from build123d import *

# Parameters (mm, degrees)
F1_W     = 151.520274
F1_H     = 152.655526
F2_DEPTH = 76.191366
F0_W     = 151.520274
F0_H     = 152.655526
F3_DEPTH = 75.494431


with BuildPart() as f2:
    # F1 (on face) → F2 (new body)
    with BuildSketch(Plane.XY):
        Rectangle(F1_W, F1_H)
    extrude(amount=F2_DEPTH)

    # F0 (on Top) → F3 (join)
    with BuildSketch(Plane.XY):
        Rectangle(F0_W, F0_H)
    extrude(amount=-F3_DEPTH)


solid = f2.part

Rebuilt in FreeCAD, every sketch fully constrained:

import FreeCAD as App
import Part
import Sketcher

doc = App.newDocument("Part")
params = doc.addObject("Spreadsheet::Sheet", "Params")
for row, (alias, value) in enumerate([
    ("pad1_length", "76.191366 mm"),
    ("pad2_length", "75.494431 mm"),
], start=1):
    params.set(f"A{row}", alias)
    params.set(f"B{row}", "=" + value)
    params.setAlias(f"B{row}", alias)

body = doc.addObject("PartDesign::Body", "Body")

# Sketch on XY plane
sketch1 = doc.addObject("Sketcher::SketchObject", "Sketch")
body.addObject(sketch1)
sketch1.AttachmentSupport = (doc.XY_Plane, [""])
sketch1.MapMode = "FlatFace"
sketch1.addGeometry(Part.LineSegment(App.Vector(-76, 76, 0), App.Vector(-76, -76, 0)), False)
sketch1.addGeometry(Part.LineSegment(App.Vector(-76, -76, 0), App.Vector(76, -76, 0)), False)
sketch1.addGeometry(Part.LineSegment(App.Vector(76, -76, 0), App.Vector(76, 76, 0)), False)
sketch1.addGeometry(Part.LineSegment(App.Vector(76, 76, 0), App.Vector(-76, 76, 0)), False)
sketch1.addConstraint(Sketcher.Constraint("Coincident", 0, 2, 1, 1))
sketch1.addConstraint(Sketcher.Constraint("Coincident", 1, 2, 2, 1))
sketch1.addConstraint(Sketcher.Constraint("Coincident", 2, 2, 3, 1))
sketch1.addConstraint(Sketcher.Constraint("Coincident", 3, 2, 0, 1))
sketch1.addConstraint(Sketcher.Constraint("Vertical", 0))
sketch1.addConstraint(Sketcher.Constraint("Horizontal", 1))
sketch1.addConstraint(Sketcher.Constraint("Vertical", 2))
sketch1.addConstraint(Sketcher.Constraint("Horizontal", 3))
sketch1.addConstraint(Sketcher.Constraint("Symmetric", 0, 2, 2, 2, -1, 1))
sketch1.addConstraint(Sketcher.Constraint("DistanceX", 1, 1, 1, 2, 151.520274))
sketch1.addConstraint(Sketcher.Constraint("DistanceY", 0, 2, 0, 1, 152.655526))
pad1 = doc.addObject("PartDesign::Pad", "Pad")
body.addObject(pad1)
pad1.Profile = sketch1
pad1.setExpression("Length", "Params.pad1_length")

# Sketch on XY plane
sketch2 = doc.addObject("Sketcher::SketchObject", "Sketch001")
body.addObject(sketch2)
sketch2.AttachmentSupport = (doc.XY_Plane, [""])
sketch2.MapMode = "FlatFace"
sketch2.addGeometry(Part.LineSegment(App.Vector(-76, 76, 0), App.Vector(-76, -76, 0)), False)
sketch2.addGeometry(Part.LineSegment(App.Vector(-76, -76, 0), App.Vector(76, -76, 0)), False)
sketch2.addGeometry(Part.LineSegment(App.Vector(76, -76, 0), App.Vector(76, 76, 0)), False)
sketch2.addGeometry(Part.LineSegment(App.Vector(76, 76, 0), App.Vector(-76, 76, 0)), False)
sketch2.addConstraint(Sketcher.Constraint("Coincident", 0, 2, 1, 1))
sketch2.addConstraint(Sketcher.Constraint("Coincident", 1, 2, 2, 1))
sketch2.addConstraint(Sketcher.Constraint("Coincident", 2, 2, 3, 1))
sketch2.addConstraint(Sketcher.Constraint("Coincident", 3, 2, 0, 1))
sketch2.addConstraint(Sketcher.Constraint("Vertical", 0))
sketch2.addConstraint(Sketcher.Constraint("Horizontal", 1))
sketch2.addConstraint(Sketcher.Constraint("Vertical", 2))
sketch2.addConstraint(Sketcher.Constraint("Horizontal", 3))
sketch2.addConstraint(Sketcher.Constraint("Symmetric", 0, 2, 2, 2, -1, 1))
sketch2.addConstraint(Sketcher.Constraint("DistanceX", 1, 1, 1, 2, 151.520274))
sketch2.addConstraint(Sketcher.Constraint("DistanceY", 0, 2, 0, 1, 152.655526))
pad2 = doc.addObject("PartDesign::Pad", "Pad001")
body.addObject(pad2)
pad2.Profile = sketch2
pad2.setExpression("Length", "Params.pad2_length")
pad2.Reversed = True

doc.recompute()
